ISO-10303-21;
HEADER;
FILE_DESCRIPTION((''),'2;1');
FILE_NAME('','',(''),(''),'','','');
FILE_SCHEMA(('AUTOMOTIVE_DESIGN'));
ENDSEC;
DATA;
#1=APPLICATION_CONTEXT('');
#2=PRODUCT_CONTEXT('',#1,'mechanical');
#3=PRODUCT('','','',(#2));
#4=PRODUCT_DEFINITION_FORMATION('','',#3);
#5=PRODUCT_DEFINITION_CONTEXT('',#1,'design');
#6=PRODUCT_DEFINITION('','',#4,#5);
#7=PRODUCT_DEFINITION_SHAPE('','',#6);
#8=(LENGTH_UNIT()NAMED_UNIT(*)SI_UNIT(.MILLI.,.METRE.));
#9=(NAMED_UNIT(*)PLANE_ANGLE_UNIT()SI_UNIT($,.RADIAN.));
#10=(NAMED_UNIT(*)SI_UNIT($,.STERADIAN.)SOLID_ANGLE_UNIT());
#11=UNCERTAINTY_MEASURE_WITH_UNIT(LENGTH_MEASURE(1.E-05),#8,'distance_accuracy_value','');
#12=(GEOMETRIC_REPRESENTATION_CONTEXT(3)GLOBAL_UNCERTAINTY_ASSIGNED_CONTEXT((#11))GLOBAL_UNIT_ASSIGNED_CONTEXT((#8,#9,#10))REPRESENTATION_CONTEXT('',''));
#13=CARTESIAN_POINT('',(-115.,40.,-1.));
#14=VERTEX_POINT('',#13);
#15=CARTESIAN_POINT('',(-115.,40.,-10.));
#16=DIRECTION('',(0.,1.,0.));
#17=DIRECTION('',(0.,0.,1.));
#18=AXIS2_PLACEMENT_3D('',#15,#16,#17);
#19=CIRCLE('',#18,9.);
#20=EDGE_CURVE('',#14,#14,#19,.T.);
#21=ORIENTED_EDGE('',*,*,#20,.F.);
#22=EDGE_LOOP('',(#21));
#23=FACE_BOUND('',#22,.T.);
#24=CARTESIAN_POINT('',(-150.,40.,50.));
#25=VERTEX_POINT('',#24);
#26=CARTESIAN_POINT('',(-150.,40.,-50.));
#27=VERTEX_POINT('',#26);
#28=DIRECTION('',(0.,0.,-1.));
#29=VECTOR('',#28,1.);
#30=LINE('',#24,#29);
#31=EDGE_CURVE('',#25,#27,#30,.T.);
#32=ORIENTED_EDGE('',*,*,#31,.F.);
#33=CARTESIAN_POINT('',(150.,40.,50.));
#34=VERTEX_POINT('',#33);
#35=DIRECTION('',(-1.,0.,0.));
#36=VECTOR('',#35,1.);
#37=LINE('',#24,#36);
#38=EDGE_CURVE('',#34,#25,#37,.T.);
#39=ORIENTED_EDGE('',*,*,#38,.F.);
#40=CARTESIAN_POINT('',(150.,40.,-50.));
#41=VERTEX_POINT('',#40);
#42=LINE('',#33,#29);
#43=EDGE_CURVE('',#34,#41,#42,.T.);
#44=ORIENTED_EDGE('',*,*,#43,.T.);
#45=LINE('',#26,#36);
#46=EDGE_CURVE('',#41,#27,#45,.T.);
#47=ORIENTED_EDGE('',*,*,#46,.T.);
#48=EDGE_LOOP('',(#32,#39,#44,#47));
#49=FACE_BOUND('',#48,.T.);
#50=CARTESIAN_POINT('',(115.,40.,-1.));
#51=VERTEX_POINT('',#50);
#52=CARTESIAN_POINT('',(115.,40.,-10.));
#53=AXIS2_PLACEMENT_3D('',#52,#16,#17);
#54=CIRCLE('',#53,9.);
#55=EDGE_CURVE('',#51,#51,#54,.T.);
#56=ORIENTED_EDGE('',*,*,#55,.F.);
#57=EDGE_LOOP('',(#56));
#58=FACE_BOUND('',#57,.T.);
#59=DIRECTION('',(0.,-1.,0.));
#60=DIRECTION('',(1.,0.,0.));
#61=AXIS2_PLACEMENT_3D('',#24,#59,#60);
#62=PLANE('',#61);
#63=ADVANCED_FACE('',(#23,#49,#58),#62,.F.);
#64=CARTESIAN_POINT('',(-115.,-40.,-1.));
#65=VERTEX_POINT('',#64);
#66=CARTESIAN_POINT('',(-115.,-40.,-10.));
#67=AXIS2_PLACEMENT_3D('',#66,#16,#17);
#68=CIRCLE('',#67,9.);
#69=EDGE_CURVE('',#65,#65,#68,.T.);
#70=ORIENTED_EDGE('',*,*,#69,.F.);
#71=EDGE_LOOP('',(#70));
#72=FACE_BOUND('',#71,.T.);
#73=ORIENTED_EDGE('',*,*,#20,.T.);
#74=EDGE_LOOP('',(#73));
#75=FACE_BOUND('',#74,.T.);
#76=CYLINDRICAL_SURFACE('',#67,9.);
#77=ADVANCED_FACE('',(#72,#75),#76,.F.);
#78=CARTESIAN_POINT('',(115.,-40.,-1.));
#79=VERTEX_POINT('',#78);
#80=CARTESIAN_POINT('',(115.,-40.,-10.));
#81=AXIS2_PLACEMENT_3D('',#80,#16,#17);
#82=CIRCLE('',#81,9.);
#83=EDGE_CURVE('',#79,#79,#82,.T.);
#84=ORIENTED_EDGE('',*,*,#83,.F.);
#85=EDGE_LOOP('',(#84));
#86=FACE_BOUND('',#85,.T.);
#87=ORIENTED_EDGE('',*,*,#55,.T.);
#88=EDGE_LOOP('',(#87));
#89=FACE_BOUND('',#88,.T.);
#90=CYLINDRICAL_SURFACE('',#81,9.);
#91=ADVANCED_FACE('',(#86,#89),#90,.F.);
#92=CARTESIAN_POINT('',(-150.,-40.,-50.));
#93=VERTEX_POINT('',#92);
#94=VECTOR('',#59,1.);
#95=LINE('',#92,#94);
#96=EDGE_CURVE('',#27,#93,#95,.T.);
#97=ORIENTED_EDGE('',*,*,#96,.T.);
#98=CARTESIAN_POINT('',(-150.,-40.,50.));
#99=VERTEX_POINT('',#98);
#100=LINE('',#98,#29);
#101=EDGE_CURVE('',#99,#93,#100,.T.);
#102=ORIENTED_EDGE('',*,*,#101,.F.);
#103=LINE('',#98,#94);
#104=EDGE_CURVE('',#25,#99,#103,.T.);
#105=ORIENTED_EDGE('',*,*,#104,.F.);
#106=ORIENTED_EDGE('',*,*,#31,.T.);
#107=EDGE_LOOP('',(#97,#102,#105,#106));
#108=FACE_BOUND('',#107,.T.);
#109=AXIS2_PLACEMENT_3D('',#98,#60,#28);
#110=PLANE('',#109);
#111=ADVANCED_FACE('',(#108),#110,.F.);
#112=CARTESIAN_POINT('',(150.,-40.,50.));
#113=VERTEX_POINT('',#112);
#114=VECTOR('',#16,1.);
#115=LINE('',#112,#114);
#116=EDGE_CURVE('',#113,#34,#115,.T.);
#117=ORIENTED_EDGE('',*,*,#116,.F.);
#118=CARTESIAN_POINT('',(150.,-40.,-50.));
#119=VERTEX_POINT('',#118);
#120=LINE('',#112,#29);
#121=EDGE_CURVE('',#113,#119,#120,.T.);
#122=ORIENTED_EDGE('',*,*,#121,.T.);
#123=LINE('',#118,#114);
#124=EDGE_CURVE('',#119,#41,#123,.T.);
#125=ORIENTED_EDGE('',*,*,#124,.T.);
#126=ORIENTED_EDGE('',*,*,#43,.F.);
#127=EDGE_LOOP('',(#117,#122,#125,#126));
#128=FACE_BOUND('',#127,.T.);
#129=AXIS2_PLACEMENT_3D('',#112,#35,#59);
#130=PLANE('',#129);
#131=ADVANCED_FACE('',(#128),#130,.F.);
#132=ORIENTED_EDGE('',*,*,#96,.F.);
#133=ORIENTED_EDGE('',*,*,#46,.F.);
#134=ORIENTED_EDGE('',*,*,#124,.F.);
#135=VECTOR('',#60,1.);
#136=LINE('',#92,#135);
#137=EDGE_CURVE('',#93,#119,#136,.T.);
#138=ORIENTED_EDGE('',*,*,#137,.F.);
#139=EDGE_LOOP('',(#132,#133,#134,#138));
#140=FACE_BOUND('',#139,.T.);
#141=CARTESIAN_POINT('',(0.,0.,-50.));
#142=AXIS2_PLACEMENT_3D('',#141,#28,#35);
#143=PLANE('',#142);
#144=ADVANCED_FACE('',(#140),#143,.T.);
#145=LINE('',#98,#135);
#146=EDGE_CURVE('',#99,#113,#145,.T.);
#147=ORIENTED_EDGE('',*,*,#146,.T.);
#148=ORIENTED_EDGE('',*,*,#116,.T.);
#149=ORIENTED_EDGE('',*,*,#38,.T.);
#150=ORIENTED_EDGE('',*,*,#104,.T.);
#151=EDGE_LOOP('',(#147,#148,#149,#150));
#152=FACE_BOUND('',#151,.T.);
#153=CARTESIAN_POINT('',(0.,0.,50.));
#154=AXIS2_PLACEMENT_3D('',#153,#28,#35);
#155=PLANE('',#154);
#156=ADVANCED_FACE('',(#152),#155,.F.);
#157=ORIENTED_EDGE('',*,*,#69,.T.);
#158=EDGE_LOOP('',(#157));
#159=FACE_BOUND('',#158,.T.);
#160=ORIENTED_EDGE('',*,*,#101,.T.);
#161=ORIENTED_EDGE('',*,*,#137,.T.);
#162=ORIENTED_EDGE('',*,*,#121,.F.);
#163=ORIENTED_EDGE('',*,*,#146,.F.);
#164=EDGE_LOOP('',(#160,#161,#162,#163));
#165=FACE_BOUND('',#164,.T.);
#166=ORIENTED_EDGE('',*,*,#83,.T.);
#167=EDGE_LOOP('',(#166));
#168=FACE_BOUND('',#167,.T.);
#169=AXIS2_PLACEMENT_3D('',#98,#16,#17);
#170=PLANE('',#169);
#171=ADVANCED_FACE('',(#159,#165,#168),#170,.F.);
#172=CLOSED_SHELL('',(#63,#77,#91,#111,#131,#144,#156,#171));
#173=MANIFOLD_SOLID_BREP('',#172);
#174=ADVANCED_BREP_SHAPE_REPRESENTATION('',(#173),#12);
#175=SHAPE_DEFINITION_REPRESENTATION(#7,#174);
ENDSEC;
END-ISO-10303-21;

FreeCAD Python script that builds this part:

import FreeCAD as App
import Part
import Sketcher

V = App.Vector

doc = App.newDocument("Part")
params = doc.addObject("Spreadsheet::Sheet", "Params")
for row, (alias, value) in enumerate([
    ("sketch1_width", "300 mm"),
    ("sketch1_height", "80 mm"),
    ("pad1_length", "100 mm"),
    ("sketch2_diameter", "18 mm"),
], start=1):
    params.set(f"A{row}", alias)
    params.set(f"B{row}", "=" + value)
    params.setAlias(f"B{row}", alias)

body = doc.addObject("PartDesign::Body", "Body")

# Sketch on XY plane
sketch1 = body.newObject("Sketcher::SketchObject", "Sketch")
sketch1.AttachmentSupport = (doc.getObject("XY_Plane"), [""])
sketch1.MapMode = "FlatFace"
sketch1.addGeometry([
    Part.LineSegment(V(-150, 40, 0), V(-150, -40, 0)),
    Part.LineSegment(V(-150, -40, 0), V(150, -40, 0)),
    Part.LineSegment(V(150, -40, 0), V(150, 40, 0)),
    Part.LineSegment(V(150, 40, 0), V(-150, 40, 0)),
], False)
sketch1.addConstraint([
    Sketcher.Constraint("Coincident", 0, 2, 1, 1),
    Sketcher.Constraint("Coincident", 1, 2, 2, 1),
    Sketcher.Constraint("Coincident", 2, 2, 3, 1),
    Sketcher.Constraint("Coincident", 3, 2, 0, 1),
    Sketcher.Constraint("Vertical", 0),
    Sketcher.Constraint("Horizontal", 1),
    Sketcher.Constraint("Vertical", 2),
    Sketcher.Constraint("Horizontal", 3),
    Sketcher.Constraint("Symmetric", 0, 2, 2, 2, -1, 1),
    Sketcher.Constraint("DistanceX", 1, 1, 1, 2, 300.0),
    Sketcher.Constraint("DistanceY", 0, 2, 0, 1, 80.0),
])
sketch1.setExpression("Constraints[9]", "Params.sketch1_width")
sketch1.setExpression("Constraints[10]", "Params.sketch1_height")
pad1 = body.newObject("PartDesign::Pad", "Pad")
pad1.Profile = sketch1
pad1.setExpression("Length", "Params.pad1_length")
pad1.Midplane = True

# Sketch on XZ plane
sketch2 = body.newObject("Sketcher::SketchObject", "Sketch001")
sketch2.AttachmentSupport = (doc.getObject("XZ_Plane"), [""])
sketch2.MapMode = "FlatFace"
sketch2.addGeometry([
    Part.Circle(V(-115, -10, 0), V(0, 0, 1), 9),
    Part.Circle(V(115, -10, 0), V(0, 0, 1), 9),
], False)
sketch2.addConstraint([
    Sketcher.Constraint("Equal", 0, 1),
    Sketcher.Constraint("Symmetric", 0, 3, 1, 3, -2),
    Sketcher.Constraint("Diameter", 0, 18.0),
    Sketcher.Constraint("DistanceX", 0, 3, -1, 1, 115.0),
    Sketcher.Constraint("DistanceY", 0, 3, -1, 1, 10.0),
])
sketch2.setExpression("Constraints[2]", "Params.sketch2_diameter")
pocket1 = body.newObject("PartDesign::Pocket", "Pocket")
pocket1.Profile = sketch2
pocket1.Type = "ThroughAll"
pocket1.Midplane = True

doc.recompute()
